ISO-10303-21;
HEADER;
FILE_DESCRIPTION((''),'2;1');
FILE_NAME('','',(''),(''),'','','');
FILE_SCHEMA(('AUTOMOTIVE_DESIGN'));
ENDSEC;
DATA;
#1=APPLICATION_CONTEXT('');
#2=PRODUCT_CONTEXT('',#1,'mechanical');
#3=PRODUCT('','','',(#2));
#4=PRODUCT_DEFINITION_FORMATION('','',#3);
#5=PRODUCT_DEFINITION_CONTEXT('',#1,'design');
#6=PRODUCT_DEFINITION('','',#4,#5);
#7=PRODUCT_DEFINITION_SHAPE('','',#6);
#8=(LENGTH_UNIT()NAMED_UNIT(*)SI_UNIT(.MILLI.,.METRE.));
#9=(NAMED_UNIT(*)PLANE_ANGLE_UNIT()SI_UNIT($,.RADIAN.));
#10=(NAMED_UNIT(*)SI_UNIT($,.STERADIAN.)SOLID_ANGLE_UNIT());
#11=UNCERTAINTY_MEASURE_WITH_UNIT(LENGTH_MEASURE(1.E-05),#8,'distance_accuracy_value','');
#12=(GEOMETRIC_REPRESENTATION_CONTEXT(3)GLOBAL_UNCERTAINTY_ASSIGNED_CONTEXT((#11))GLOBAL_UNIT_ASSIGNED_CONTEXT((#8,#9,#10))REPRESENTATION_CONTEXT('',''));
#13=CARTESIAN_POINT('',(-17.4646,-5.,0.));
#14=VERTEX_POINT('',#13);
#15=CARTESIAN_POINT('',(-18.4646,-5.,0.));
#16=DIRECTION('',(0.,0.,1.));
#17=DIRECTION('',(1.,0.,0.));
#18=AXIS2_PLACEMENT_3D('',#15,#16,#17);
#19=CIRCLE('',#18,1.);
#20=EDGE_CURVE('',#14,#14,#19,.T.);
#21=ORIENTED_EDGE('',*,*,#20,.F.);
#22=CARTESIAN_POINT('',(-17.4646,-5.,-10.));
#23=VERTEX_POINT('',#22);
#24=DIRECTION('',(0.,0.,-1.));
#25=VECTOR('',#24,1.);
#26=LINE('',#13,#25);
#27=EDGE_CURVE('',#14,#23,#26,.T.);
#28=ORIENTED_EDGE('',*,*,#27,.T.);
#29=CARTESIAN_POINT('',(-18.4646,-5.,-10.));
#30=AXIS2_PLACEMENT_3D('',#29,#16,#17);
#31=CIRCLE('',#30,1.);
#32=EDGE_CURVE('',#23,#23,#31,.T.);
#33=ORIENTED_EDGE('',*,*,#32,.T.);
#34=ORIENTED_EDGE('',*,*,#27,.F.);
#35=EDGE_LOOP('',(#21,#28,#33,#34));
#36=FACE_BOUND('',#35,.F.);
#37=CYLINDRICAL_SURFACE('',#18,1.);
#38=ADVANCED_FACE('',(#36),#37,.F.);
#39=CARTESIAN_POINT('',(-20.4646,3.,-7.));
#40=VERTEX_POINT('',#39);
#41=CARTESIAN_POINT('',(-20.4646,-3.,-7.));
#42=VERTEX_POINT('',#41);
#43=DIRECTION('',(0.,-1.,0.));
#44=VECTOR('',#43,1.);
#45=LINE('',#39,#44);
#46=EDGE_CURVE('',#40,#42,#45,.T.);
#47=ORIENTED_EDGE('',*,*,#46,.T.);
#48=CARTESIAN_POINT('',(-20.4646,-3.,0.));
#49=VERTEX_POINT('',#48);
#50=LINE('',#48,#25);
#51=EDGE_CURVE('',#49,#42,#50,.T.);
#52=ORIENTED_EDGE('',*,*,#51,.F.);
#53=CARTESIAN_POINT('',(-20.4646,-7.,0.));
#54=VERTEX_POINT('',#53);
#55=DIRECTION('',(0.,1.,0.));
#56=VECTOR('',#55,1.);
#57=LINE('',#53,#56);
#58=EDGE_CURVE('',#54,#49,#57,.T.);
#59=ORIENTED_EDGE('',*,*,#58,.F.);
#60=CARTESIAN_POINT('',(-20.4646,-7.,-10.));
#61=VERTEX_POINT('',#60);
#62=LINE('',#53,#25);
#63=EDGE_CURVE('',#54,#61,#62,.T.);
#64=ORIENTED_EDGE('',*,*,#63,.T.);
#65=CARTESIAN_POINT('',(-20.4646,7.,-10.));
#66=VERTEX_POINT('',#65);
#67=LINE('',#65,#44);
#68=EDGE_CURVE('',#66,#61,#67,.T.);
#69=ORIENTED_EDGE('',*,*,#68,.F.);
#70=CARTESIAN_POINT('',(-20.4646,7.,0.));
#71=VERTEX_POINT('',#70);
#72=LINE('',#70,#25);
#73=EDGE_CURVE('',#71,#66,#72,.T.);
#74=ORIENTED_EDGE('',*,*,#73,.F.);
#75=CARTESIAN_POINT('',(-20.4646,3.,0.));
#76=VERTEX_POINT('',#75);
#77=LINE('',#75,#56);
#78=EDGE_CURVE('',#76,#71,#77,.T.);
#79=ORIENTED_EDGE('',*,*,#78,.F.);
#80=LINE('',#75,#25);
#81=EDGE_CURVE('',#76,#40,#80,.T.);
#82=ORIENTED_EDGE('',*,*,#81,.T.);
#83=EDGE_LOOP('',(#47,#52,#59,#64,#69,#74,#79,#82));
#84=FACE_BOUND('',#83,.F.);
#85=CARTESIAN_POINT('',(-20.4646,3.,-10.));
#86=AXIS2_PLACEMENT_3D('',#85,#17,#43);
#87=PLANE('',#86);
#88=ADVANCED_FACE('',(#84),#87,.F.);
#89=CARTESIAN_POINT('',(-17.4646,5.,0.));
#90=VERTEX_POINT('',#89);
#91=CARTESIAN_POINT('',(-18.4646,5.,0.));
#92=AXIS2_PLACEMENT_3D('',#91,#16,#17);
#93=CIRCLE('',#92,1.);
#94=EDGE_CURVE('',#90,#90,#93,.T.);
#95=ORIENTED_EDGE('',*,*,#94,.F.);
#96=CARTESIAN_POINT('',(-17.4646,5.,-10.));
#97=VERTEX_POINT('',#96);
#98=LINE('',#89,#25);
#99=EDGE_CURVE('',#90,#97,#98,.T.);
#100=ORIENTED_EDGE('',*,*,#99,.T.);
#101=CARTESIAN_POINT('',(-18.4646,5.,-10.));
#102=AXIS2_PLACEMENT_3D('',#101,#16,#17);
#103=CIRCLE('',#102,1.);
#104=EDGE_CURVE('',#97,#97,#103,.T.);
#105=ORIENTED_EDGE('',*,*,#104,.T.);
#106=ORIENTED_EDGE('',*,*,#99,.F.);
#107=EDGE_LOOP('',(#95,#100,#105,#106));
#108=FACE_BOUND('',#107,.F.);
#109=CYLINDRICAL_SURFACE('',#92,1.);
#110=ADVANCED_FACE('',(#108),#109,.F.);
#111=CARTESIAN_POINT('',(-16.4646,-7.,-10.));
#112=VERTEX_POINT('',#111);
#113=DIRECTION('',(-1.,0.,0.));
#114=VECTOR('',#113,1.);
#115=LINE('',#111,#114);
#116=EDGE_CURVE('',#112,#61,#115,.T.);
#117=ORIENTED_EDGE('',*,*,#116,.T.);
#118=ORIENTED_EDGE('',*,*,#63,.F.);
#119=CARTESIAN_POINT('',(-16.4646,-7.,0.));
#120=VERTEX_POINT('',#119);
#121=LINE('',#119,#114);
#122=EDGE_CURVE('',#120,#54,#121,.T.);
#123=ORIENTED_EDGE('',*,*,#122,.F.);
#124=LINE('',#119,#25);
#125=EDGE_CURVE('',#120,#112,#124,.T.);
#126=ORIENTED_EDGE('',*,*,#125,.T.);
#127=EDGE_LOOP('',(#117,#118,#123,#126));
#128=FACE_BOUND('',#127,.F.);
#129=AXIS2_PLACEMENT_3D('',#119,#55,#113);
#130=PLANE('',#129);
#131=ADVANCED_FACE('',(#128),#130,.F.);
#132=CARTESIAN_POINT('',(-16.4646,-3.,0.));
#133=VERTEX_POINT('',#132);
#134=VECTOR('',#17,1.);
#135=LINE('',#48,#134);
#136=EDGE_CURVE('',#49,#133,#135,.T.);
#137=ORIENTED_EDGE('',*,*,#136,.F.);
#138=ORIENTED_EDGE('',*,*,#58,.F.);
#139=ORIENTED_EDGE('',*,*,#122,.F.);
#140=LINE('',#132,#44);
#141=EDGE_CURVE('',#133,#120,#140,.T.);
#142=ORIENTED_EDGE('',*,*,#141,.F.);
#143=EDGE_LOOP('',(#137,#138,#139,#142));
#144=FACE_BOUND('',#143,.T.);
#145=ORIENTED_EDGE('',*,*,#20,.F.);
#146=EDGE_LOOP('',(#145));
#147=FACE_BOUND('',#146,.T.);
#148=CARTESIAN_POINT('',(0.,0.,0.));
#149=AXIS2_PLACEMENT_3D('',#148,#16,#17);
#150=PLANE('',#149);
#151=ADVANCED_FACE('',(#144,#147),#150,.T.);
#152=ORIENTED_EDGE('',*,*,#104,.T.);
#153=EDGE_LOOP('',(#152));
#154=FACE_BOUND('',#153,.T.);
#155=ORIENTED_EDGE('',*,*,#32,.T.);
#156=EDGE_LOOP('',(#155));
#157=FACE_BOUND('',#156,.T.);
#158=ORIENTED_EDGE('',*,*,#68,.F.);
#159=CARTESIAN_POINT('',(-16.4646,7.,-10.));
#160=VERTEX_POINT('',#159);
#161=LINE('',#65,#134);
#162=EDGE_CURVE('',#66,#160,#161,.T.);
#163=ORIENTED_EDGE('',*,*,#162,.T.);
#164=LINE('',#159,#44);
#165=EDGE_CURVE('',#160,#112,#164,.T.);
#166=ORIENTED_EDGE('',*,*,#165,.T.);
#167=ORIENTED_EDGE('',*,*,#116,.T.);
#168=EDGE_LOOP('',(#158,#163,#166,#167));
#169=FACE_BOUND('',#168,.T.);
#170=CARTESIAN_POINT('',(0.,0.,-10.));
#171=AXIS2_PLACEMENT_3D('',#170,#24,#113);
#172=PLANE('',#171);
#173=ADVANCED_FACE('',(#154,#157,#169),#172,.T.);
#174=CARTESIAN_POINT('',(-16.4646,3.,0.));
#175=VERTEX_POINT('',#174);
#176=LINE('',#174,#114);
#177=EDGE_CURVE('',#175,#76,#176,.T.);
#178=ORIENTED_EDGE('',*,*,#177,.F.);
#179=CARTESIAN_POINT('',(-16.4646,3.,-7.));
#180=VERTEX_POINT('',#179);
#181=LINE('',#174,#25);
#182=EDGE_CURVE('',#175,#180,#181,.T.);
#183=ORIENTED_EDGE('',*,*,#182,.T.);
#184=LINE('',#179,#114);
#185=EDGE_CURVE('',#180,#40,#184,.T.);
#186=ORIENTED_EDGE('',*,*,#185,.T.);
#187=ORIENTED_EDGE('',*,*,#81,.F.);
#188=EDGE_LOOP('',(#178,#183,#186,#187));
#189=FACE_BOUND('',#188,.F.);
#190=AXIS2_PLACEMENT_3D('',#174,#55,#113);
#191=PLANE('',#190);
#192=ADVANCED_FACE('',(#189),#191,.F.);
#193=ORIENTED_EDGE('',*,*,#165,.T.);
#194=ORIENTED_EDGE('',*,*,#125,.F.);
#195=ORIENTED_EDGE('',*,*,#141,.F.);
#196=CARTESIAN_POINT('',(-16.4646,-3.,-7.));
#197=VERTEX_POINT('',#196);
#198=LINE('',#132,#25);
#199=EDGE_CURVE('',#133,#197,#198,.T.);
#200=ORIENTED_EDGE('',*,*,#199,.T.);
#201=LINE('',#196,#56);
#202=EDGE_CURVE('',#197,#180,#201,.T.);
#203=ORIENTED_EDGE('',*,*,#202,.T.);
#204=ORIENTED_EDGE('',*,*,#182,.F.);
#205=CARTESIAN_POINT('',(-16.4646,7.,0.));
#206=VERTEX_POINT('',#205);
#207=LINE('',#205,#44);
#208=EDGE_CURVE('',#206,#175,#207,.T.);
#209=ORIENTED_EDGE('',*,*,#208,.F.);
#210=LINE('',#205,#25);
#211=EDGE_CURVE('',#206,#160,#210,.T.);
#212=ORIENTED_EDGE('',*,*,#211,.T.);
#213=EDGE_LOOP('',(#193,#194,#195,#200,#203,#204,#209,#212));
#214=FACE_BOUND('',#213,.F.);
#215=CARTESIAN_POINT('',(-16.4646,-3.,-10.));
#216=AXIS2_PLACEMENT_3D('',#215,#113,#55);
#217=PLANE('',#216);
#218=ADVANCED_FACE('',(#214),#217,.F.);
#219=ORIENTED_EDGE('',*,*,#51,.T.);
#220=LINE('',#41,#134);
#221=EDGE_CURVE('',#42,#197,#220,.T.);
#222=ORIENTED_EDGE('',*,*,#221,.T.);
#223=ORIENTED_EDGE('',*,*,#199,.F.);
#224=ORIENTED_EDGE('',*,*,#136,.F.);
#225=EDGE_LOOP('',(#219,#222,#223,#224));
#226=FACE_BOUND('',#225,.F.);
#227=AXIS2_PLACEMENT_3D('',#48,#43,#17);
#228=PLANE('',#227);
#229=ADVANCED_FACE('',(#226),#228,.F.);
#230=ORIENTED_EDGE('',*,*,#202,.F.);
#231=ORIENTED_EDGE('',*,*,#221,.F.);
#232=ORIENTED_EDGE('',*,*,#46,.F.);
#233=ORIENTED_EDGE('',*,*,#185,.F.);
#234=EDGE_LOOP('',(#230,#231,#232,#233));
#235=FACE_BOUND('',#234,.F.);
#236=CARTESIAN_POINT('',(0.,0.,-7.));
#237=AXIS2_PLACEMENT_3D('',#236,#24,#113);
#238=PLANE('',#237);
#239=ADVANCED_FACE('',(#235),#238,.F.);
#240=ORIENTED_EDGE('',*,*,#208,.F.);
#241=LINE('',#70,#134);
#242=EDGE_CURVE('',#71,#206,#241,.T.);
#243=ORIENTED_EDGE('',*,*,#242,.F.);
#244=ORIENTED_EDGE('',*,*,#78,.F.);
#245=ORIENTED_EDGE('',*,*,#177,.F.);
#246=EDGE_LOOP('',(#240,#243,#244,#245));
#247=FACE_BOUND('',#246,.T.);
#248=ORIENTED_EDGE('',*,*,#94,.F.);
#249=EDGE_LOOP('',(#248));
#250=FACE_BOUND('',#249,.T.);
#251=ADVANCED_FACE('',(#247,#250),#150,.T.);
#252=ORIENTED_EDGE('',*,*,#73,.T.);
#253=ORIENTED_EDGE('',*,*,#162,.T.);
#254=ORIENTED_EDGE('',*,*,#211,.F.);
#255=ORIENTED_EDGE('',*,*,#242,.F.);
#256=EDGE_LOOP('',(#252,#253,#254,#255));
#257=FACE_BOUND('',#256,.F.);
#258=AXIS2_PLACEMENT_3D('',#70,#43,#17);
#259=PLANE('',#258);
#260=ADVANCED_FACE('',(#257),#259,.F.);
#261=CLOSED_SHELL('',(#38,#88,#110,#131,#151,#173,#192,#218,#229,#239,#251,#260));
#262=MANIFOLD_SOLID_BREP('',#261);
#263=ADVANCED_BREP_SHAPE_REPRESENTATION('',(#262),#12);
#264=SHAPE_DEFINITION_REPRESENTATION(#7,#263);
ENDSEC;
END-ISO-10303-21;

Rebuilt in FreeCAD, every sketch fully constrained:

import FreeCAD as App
import Part
import Sketcher

V = App.Vector
Q = App.Units.Quantity


def add_polygon(sketch, points):
    """Adds a closed chain of lines whose ends are joined by coincident constraints."""
    first, n = sketch.GeometryCount, len(points)
    for a, b in zip(points, points[1:] + points[:1]):
        sketch.addGeometry(Part.LineSegment(App.Vector(*a, 0), App.Vector(*b, 0)), False)
    for i in range(n):
        sketch.addConstraint(Sketcher.Constraint("Coincident", first + i, 2, first + (i + 1) % n, 1))

doc = App.newDocument("Part")
body = doc.addObject("PartDesign::Body", "Body")
body.AllowCompound = True

# Sketch on XY plane
sketch1 = body.newObject("Sketcher::SketchObject", "Sketch")
sketch1.AttachmentSupport = (doc.getObject("XY_Plane"), [""])
sketch1.MapMode = "FlatFace"
add_polygon(sketch1, [(-16.4646, 7), (-20.4646, 7), (-20.4646, 3), (-16.4646, 3)])  # lines 0-3
sketch1.addGeometry(Part.Circle(V(-18.4646, 5, 0), V(0, 0, 1), 1), False)  # 4
add_polygon(sketch1, [(-16.4646, -3), (-20.4646, -3), (-20.4646, -7), (-16.4646, -7)])  # lines 5-8
sketch1.addGeometry(Part.Circle(V(-18.4646, -5, 0), V(0, 0, 1), 1), False)  # 9
sketch1.addConstraint(Sketcher.Constraint("Horizontal", 0))
sketch1.addConstraint(Sketcher.Constraint("Vertical", 1))
sketch1.addConstraint(Sketcher.Constraint("Horizontal", 2))
sketch1.addConstraint(Sketcher.Constraint("Vertical", 3))
sketch1.addConstraint(Sketcher.Constraint("Horizontal", 5))
sketch1.addConstraint(Sketcher.Constraint("Vertical", 6))
sketch1.addConstraint(Sketcher.Constraint("Horizontal", 7))
sketch1.addConstraint(Sketcher.Constraint("Vertical", 8))
sketch1.addConstraint(Sketcher.Constraint("Equal", 4, 9))
sketch1.addConstraint(Sketcher.Constraint("Symmetric", 4, 3, 9, 3, -1))
sketch1.addConstraint(Sketcher.Constraint("Symmetric", 1, 2, 5, 2, -1))
sketch1.addConstraint(Sketcher.Constraint("Symmetric", 3, 2, 7, 2, -1))
sketch1.addConstraint(Sketcher.Constraint("Equal", 7, 1))
sketch1.addConstraint(Sketcher.Constraint("Diameter", 4, Q("2 mm")))
sketch1.addConstraint(Sketcher.Constraint("DistanceX", 0, 2, 4, 3, Q("2 mm")))
sketch1.addConstraint(Sketcher.Constraint("DistanceY", 4, 3, 0, 2, Q("2 mm")))
sketch1.addConstraint(Sketcher.Constraint("DistanceY", 1, 2, 4, 3, Q("2 mm")))
sketch1.addConstraint(Sketcher.Constraint("DistanceY", -1, 1, 4, 3, Q("5 mm")))
sketch1.addConstraint(Sketcher.Constraint("DistanceX", 4, 3, -1, 1, Q("18.4646 mm")))
pad1 = body.newObject("PartDesign::Pad", "Pad")
pad1.Profile = sketch1
pad1.Length = 10
pad1.Reversed = True

# Sketch on XY plane
sketch2 = body.newObject("Sketcher::SketchObject", "Sketch001")
sketch2.AttachmentSupport = (doc.getObject("XY_Plane"), [""])
sketch2.MapMode = "FlatFace"
sketch2.AttachmentOffset = App.Placement(V(0, 0, -10), App.Rotation())
add_polygon(sketch2, [(-20.4646, 3), (-16.4646, 3), (-16.4646, -3), (-20.4646, -3)])  # lines 0-3
sketch2.addConstraint(Sketcher.Constraint("Horizontal", 0))
sketch2.addConstraint(Sketcher.Constraint("Vertical", 1))
sketch2.addConstraint(Sketcher.Constraint("Horizontal", 2))
sketch2.addConstraint(Sketcher.Constraint("Vertical", 3))
sketch2.addConstraint(Sketcher.Constraint("DistanceX", 0, 1, 0, 2, Q("4 mm")))
sketch2.addConstraint(Sketcher.Constraint("DistanceY", 1, 2, 1, 1, Q("6 mm")))
sketch2.addConstraint(Sketcher.Constraint("DistanceY", -1, 1, 0, 2, Q("3 mm")))
sketch2.addConstraint(Sketcher.Constraint("DistanceX", 0, 2, -1, 1, Q("16.4646 mm")))
pad2 = body.newObject("PartDesign::Pad", "Pad001")
pad2.Profile = sketch2
pad2.Length = 3

doc.recompute()
